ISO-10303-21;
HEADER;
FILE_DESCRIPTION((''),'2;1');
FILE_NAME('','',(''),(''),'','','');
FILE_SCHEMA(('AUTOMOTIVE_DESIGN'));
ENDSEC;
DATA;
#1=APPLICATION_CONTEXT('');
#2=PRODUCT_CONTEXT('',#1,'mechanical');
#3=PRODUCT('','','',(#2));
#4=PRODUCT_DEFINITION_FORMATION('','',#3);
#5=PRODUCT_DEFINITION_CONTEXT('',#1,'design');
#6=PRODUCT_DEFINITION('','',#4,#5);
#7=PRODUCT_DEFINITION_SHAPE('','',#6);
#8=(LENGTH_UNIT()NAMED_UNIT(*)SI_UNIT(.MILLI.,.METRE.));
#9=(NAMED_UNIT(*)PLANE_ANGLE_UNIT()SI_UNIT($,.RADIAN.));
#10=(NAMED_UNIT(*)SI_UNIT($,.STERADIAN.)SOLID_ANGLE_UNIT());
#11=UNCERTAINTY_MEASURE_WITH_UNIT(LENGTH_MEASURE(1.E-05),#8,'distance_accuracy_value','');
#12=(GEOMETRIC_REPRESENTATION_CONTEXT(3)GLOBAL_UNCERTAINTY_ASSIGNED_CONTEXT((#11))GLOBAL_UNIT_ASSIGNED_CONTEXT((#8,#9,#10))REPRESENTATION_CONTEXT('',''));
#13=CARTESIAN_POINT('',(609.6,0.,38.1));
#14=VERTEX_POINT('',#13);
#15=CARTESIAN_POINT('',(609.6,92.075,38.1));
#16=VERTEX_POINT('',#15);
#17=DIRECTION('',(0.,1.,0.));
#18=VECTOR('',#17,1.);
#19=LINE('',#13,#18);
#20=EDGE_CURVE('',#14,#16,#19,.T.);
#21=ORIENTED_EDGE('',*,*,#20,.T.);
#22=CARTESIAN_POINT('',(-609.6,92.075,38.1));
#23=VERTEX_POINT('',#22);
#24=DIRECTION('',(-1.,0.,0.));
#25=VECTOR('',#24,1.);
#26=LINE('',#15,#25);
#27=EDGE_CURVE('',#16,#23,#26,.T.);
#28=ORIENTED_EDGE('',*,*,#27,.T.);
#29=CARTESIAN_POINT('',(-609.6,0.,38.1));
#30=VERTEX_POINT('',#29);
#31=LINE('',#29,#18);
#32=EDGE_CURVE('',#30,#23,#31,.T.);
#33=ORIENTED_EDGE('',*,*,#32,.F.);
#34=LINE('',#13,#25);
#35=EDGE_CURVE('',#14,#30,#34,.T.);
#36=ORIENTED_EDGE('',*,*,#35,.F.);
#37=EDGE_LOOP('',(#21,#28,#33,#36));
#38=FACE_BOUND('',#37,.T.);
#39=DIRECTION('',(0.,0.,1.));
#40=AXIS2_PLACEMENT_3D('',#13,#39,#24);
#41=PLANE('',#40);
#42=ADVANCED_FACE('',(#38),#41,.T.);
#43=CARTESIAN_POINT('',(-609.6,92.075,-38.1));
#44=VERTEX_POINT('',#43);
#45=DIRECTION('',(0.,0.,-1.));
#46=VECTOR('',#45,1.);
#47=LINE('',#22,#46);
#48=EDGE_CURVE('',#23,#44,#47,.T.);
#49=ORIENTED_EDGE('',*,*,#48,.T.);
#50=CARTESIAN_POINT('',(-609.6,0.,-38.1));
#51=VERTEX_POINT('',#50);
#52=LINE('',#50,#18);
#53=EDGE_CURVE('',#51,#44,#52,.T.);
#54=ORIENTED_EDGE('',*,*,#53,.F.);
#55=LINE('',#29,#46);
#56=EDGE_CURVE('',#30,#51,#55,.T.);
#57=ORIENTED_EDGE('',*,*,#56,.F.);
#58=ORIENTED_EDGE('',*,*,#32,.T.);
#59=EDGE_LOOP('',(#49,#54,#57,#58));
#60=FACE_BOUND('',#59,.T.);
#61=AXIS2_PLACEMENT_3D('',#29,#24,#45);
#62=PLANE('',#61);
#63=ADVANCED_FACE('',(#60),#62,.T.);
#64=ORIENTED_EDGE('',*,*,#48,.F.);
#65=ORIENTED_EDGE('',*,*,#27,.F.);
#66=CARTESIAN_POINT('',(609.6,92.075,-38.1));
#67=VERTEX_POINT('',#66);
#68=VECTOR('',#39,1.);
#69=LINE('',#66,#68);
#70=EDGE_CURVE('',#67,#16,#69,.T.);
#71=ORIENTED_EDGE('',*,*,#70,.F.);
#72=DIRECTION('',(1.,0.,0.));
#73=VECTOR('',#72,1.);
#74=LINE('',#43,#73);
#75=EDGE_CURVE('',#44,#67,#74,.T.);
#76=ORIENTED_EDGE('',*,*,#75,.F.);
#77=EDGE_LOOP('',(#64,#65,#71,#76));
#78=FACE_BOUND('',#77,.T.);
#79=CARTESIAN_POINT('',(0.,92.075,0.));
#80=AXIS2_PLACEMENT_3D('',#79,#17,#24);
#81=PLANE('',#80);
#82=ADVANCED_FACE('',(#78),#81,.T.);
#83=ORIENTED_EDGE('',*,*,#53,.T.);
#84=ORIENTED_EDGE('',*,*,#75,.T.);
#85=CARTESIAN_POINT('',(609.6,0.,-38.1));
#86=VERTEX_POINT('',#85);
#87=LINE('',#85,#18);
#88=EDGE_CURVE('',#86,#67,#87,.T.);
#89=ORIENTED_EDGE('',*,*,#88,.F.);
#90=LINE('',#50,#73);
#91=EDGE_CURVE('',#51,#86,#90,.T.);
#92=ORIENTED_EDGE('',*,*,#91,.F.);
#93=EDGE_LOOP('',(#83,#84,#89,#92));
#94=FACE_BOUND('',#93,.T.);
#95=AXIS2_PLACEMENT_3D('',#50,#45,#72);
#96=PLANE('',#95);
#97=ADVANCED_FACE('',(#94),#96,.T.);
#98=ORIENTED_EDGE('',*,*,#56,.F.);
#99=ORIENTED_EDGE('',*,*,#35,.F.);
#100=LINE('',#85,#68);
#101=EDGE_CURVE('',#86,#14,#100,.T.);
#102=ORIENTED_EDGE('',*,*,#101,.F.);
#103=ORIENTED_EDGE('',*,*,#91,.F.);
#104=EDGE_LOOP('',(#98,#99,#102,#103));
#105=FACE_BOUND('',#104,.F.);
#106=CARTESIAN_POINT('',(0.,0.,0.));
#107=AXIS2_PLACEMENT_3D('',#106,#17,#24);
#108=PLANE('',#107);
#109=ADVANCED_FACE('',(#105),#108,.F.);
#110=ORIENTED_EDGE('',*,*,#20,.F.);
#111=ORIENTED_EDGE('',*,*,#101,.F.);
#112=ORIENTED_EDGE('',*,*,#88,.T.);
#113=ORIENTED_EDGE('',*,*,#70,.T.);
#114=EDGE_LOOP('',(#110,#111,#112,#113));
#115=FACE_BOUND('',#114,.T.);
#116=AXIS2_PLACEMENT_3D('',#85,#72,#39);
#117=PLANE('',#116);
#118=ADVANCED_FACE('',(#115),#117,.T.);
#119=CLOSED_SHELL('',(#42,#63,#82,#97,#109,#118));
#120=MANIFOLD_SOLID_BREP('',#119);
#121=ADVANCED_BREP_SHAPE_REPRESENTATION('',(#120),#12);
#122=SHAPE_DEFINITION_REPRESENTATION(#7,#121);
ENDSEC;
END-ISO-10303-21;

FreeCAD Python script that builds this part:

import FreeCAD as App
import Part
import Sketcher

V = App.Vector
Q = App.Units.Quantity

doc = App.newDocument("Part")
params = doc.addObject("Spreadsheet::Sheet", "Params")
for row, (alias, value) in enumerate([
    ("sketch1_width", "48 in"),
    ("sketch1_height", "3 in"),
    ("pad1_length", "3.625 in"),
], start=1):
    params.set(f"A{row}", alias)
    params.set(f"B{row}", "=" + value)
    params.setAlias(f"B{row}", alias)

body = doc.addObject("PartDesign::Body", "Body")

# Sketch on XZ plane
sketch1 = body.newObject("Sketcher::SketchObject", "Sketch")
sketch1.AttachmentSupport = (doc.getObject("XZ_Plane"), [""])
sketch1.MapMode = "FlatFace"
sketch1.addGeometry([
    Part.LineSegment(V(610, -38, 0), V(-610, -38, 0)),
    Part.LineSegment(V(-610, -38, 0), V(-610, 38, 0)),
    Part.LineSegment(V(-610, 38, 0), V(610, 38, 0)),
    Part.LineSegment(V(610, 38, 0), V(610, -38, 0)),
], False)
sketch1.addConstraint([
    Sketcher.Constraint("Coincident", 0, 2, 1, 1),
    Sketcher.Constraint("Coincident", 1, 2, 2, 1),
    Sketcher.Constraint("Coincident", 2, 2, 3, 1),
    Sketcher.Constraint("Coincident", 3, 2, 0, 1),
    Sketcher.Constraint("Horizontal", 0),
    Sketcher.Constraint("Vertical", 1),
    Sketcher.Constraint("Horizontal", 2),
    Sketcher.Constraint("Vertical", 3),
    Sketcher.Constraint("Symmetric", 0, 2, 2, 2, -1, 1),
    Sketcher.Constraint("DistanceX", 0, 2, 0, 1, Q("48 in")),
    Sketcher.Constraint("DistanceY", 1, 1, 1, 2, Q("3 in")),
])
sketch1.setExpression("Constraints[9]", "Params.sketch1_width")
sketch1.setExpression("Constraints[10]", "Params.sketch1_height")
pad1 = body.newObject("PartDesign::Pad", "Pad")
pad1.Profile = sketch1
pad1.setExpression("Length", "Params.pad1_length")
pad1.Reversed = True

doc.recompute()
